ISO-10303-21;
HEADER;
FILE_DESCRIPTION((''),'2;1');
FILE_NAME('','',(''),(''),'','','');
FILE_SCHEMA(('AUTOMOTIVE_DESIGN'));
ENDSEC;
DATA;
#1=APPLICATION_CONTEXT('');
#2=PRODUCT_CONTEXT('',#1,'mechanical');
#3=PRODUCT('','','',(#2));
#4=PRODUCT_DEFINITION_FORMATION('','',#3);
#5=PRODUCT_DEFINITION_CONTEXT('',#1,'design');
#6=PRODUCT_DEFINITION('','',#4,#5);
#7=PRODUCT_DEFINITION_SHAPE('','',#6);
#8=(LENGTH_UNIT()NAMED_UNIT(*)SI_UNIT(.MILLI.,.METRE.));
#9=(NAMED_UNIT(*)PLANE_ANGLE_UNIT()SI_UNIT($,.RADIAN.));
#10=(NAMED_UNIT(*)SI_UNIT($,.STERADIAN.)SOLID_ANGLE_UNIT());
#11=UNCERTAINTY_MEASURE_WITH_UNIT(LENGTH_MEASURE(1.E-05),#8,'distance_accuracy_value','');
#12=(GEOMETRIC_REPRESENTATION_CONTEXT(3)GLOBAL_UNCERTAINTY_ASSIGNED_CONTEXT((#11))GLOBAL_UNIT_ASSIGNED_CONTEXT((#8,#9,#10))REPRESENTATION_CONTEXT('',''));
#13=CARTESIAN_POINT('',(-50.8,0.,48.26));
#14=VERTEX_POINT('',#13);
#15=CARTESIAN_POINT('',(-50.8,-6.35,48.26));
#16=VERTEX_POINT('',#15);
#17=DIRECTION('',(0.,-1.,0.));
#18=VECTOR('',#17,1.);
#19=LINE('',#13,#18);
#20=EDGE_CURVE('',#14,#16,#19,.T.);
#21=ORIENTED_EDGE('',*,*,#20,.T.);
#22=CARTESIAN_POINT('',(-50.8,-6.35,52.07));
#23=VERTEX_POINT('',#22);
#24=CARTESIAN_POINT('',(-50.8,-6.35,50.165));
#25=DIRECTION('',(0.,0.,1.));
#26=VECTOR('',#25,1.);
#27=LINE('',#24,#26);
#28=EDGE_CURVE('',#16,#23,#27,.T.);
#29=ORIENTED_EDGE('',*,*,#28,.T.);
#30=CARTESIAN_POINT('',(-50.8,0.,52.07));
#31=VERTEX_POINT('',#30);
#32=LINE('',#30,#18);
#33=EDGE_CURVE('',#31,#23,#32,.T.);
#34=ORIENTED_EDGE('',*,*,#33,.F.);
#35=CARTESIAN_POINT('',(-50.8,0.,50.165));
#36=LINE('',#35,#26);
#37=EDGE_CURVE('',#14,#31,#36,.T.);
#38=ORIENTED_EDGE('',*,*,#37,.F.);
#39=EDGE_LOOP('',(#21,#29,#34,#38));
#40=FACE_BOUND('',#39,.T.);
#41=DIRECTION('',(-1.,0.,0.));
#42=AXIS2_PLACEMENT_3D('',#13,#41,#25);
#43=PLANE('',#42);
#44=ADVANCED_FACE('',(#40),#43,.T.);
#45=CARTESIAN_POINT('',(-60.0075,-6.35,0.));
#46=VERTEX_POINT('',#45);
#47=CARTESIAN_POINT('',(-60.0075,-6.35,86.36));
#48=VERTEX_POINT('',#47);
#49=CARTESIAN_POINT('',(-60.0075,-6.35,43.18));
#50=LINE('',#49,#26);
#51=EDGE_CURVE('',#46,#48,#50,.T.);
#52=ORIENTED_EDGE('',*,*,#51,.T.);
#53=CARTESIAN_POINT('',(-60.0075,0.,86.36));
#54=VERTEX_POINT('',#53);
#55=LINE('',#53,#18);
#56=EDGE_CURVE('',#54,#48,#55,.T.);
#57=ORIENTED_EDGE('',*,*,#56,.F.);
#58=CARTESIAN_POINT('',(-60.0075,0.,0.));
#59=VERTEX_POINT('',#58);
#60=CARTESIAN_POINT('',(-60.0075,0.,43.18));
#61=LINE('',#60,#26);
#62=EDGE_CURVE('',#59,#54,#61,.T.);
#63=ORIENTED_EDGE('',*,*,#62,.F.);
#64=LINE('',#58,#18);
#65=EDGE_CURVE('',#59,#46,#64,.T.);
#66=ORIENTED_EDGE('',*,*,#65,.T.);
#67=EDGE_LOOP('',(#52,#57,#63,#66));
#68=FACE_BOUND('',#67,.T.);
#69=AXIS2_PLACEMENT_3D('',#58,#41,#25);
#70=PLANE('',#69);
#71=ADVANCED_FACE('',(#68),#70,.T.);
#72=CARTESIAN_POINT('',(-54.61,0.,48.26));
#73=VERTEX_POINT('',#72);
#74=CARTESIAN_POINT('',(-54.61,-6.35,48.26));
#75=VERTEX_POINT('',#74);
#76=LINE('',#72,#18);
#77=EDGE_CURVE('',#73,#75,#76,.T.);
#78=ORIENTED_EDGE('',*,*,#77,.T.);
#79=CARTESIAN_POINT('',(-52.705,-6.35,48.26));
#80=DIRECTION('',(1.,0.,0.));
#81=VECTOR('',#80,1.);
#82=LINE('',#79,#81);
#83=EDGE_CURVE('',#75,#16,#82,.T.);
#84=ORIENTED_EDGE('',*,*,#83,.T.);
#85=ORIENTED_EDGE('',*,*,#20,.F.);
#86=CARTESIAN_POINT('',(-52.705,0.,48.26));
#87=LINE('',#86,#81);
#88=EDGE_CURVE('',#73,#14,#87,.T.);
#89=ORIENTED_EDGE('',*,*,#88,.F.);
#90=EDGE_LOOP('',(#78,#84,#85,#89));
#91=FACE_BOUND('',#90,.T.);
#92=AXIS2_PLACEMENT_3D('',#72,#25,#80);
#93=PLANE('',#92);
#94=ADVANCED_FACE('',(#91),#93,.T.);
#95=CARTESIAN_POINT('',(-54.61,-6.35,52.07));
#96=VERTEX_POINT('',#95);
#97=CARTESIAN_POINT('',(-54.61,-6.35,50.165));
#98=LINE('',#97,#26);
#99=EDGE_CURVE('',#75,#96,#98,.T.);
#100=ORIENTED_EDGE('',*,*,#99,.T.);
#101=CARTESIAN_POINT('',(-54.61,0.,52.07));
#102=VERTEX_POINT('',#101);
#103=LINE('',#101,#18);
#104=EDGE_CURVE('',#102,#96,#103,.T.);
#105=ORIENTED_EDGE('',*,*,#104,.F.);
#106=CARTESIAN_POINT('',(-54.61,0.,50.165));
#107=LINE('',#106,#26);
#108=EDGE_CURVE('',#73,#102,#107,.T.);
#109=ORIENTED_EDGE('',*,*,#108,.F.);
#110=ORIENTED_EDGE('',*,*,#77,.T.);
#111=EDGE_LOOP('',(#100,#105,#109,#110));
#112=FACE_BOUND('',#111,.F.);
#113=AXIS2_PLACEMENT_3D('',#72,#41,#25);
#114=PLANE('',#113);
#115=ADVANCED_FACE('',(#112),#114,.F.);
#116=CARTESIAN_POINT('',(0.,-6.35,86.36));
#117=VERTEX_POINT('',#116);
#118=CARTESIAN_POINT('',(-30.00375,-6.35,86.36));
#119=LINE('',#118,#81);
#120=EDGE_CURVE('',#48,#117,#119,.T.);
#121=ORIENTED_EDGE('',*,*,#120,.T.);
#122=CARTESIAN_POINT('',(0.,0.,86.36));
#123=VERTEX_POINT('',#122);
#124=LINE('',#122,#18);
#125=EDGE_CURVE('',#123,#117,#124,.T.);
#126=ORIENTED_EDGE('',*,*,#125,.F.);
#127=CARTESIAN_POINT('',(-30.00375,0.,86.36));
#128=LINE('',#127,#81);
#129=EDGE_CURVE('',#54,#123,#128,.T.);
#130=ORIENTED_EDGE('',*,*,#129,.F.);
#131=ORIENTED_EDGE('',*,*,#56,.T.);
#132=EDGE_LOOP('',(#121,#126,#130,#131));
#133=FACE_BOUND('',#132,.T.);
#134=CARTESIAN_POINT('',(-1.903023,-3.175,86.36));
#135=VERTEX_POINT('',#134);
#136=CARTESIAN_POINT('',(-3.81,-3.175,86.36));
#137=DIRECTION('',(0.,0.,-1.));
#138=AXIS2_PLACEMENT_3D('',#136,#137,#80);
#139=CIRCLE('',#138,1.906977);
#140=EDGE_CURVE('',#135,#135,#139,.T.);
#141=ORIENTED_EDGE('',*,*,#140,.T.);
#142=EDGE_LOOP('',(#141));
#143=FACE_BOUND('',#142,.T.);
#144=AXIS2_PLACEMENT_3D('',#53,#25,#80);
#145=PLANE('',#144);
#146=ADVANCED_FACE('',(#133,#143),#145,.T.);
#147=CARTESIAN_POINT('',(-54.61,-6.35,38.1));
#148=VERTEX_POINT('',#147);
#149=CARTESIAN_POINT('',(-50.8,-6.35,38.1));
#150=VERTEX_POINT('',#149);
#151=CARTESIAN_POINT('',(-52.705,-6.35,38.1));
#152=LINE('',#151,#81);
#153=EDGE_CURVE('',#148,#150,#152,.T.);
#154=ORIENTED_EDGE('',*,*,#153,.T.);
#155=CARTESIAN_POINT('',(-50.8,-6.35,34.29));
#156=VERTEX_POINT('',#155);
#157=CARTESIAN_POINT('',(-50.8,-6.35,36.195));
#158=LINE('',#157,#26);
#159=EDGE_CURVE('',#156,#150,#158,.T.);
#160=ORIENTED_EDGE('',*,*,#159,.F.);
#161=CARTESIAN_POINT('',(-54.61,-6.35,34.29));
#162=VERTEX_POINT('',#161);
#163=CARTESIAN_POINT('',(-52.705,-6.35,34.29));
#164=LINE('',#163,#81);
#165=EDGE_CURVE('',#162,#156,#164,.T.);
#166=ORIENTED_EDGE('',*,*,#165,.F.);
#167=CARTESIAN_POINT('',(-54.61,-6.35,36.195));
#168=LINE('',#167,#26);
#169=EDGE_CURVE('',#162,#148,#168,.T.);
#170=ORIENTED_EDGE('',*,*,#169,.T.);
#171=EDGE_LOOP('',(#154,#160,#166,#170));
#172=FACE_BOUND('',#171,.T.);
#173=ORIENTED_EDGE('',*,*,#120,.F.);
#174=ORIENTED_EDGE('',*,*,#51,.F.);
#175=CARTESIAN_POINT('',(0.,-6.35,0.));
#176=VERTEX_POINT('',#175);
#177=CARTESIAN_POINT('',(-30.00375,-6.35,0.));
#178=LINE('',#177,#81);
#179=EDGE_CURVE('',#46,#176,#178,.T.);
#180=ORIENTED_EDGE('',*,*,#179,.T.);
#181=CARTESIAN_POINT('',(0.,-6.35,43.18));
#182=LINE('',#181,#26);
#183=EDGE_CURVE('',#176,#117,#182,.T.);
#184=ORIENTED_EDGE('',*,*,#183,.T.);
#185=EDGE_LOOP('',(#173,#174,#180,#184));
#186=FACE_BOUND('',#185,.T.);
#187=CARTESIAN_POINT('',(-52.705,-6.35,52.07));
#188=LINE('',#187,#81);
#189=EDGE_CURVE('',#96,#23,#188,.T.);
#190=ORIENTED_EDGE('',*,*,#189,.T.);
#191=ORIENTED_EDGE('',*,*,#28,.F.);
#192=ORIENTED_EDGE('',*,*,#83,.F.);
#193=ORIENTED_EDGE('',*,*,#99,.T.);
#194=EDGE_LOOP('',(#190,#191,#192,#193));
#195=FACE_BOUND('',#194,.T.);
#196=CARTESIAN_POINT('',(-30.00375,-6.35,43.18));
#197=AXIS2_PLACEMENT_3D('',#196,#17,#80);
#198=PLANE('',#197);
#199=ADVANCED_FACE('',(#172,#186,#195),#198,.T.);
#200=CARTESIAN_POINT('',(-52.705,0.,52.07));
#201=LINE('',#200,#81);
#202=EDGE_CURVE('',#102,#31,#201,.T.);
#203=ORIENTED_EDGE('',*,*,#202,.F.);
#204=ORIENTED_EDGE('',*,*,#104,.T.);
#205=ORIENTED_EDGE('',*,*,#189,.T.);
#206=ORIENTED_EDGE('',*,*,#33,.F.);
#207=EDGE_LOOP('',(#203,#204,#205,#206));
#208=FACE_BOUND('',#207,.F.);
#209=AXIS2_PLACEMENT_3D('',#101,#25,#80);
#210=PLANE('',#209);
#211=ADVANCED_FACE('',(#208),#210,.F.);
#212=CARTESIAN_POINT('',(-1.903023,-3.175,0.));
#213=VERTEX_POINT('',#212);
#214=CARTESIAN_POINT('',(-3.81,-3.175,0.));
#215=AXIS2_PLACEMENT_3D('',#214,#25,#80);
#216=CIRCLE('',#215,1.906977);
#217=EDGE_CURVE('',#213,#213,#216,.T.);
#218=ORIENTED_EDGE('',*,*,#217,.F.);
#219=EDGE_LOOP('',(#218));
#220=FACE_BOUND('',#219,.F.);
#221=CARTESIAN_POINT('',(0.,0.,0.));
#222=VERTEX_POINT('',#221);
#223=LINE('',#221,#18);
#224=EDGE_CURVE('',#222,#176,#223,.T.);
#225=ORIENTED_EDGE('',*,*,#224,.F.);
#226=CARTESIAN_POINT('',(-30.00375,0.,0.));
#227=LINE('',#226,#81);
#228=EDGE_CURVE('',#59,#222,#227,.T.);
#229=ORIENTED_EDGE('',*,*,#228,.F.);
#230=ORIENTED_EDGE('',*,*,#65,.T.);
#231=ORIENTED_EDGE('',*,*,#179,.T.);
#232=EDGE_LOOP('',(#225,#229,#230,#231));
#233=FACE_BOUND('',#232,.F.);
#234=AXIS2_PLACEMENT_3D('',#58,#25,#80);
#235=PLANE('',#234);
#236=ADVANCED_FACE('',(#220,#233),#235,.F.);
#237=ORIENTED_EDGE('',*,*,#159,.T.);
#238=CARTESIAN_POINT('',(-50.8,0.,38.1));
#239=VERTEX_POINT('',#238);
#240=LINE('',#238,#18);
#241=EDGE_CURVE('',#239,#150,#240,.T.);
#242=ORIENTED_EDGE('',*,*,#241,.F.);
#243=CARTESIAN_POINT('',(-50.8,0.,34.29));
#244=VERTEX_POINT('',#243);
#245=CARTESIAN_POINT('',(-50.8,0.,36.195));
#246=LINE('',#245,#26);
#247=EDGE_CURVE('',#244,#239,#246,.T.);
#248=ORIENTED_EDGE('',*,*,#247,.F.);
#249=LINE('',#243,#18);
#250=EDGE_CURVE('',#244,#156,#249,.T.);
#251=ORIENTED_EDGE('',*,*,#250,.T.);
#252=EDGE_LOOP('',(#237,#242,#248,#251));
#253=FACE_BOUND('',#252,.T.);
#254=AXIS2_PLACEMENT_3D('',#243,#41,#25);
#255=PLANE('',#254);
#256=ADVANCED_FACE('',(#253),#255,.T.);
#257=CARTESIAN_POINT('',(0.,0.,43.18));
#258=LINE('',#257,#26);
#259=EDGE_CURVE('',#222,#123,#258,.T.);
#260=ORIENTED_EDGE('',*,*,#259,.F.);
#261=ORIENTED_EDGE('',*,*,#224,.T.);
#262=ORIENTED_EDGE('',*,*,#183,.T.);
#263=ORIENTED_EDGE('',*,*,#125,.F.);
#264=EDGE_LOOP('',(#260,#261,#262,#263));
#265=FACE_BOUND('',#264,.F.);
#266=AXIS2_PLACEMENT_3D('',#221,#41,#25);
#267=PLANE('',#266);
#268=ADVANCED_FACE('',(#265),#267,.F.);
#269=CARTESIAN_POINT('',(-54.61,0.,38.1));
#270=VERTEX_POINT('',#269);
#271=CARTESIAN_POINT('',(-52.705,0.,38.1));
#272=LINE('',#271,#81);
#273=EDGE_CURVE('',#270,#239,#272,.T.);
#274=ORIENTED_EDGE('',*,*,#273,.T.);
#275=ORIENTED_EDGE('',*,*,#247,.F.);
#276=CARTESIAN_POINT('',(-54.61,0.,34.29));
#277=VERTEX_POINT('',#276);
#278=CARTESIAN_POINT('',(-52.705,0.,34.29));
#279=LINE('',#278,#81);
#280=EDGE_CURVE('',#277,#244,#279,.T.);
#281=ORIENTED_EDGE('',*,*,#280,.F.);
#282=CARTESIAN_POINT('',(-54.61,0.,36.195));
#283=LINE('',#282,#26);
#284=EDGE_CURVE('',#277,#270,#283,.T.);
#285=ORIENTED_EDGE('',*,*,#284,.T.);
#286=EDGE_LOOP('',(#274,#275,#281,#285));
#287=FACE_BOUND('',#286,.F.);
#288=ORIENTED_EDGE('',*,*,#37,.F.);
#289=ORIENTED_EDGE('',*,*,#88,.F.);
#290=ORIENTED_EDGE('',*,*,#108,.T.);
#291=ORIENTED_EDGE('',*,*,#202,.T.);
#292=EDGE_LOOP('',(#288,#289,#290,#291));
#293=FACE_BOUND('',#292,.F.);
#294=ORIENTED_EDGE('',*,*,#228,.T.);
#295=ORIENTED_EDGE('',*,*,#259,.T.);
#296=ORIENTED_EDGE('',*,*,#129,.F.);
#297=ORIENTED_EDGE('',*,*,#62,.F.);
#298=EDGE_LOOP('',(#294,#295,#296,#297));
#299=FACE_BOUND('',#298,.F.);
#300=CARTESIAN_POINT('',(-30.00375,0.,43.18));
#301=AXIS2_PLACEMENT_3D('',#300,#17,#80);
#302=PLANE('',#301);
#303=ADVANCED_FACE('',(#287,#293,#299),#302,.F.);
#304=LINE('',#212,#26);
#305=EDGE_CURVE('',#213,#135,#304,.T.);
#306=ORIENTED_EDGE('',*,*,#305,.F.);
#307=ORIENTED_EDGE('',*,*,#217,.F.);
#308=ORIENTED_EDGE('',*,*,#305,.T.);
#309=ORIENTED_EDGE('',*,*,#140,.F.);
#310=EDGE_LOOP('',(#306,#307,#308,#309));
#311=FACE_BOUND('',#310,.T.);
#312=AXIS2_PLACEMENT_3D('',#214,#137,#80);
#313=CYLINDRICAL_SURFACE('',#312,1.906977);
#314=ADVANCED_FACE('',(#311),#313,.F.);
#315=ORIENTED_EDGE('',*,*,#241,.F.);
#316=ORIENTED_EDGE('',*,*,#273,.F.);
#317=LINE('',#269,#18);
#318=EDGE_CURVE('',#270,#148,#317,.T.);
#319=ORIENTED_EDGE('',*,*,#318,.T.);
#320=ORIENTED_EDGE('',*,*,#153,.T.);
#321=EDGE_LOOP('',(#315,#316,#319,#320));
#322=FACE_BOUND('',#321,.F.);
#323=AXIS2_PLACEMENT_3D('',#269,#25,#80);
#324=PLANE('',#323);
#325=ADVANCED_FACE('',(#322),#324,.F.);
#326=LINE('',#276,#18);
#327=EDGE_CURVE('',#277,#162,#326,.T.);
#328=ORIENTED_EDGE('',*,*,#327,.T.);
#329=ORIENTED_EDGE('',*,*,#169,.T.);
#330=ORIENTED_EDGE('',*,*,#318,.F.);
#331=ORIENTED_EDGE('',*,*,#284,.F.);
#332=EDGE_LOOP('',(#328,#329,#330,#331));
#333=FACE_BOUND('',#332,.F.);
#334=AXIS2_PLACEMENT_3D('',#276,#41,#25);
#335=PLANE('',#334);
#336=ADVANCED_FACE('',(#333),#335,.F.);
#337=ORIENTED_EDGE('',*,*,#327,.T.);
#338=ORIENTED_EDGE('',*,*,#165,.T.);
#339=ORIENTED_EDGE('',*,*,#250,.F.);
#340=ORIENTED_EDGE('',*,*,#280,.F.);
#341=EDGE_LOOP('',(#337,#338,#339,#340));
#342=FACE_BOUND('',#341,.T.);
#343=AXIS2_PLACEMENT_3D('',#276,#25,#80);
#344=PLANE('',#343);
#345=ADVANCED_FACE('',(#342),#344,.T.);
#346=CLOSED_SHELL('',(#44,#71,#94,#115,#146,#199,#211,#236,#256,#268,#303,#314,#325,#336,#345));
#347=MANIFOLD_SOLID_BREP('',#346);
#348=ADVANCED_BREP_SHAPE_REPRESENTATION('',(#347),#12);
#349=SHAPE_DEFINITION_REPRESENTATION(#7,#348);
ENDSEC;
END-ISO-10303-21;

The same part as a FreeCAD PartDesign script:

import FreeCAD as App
import Part
import Sketcher
from FreeCAD import Vector
Q = App.Units.Quantity

doc = App.newDocument("Part")
body = doc.addObject("PartDesign::Body", "Body")

# Sketch on XZ plane
sketch1 = body.newObject("Sketcher::SketchObject", "Sketch")
sketch1.AttachmentSupport = (doc.getObject("XZ_Plane"), [""])
sketch1.MapMode = "FlatFace"
sketch1.addGeometry([
    Part.LineSegment(Vector(-60, 86.4, 0), Vector(-60, 0, 0)),  # 0
    Part.LineSegment(Vector(-60, 0, 0), Vector(0, 0, 0)),  # 1
    Part.LineSegment(Vector(0, 0, 0), Vector(0, 86.4, 0)),  # 2
    Part.LineSegment(Vector(0, 86.4, 0), Vector(-60, 86.4, 0)),  # 3
    Part.LineSegment(Vector(-50.8, 34.3, 0), Vector(-54.6, 34.3, 0)),  # 4
    Part.LineSegment(Vector(-54.6, 34.3, 0), Vector(-54.6, 38.1, 0)),  # 5
    Part.LineSegment(Vector(-54.6, 38.1, 0), Vector(-50.8, 38.1, 0)),  # 6
    Part.LineSegment(Vector(-50.8, 38.1, 0), Vector(-50.8, 34.3, 0)),  # 7
    Part.LineSegment(Vector(-50.8, 48.3, 0), Vector(-54.6, 48.3, 0)),  # 8
    Part.LineSegment(Vector(-54.6, 48.3, 0), Vector(-54.6, 52.1, 0)),  # 9
    Part.LineSegment(Vector(-54.6, 52.1, 0), Vector(-50.8, 52.1, 0)),  # 10
    Part.LineSegment(Vector(-50.8, 52.1, 0), Vector(-50.8, 48.3, 0)),  # 11
], False)
sketch1.addConstraint([
    Sketcher.Constraint("Coincident", 0, 2, 1, 1),
    Sketcher.Constraint("Coincident", 1, 2, 2, 1),
    Sketcher.Constraint("Coincident", 2, 2, 3, 1),
    Sketcher.Constraint("Coincident", 3, 2, 0, 1),
    Sketcher.Constraint("Coincident", 4, 2, 5, 1),
    Sketcher.Constraint("Coincident", 5, 2, 6, 1),
    Sketcher.Constraint("Coincident", 6, 2, 7, 1),
    Sketcher.Constraint("Coincident", 7, 2, 4, 1),
    Sketcher.Constraint("Coincident", 8, 2, 9, 1),
    Sketcher.Constraint("Coincident", 9, 2, 10, 1),
    Sketcher.Constraint("Coincident", 10, 2, 11, 1),
    Sketcher.Constraint("Coincident", 11, 2, 8, 1),
    Sketcher.Constraint("Vertical", 0),
    Sketcher.Constraint("Horizontal", 1),
    Sketcher.Constraint("Vertical", 2),
    Sketcher.Constraint("Horizontal", 3),
    Sketcher.Constraint("Horizontal", 4),
    Sketcher.Constraint("Vertical", 5),
    Sketcher.Constraint("Horizontal", 6),
    Sketcher.Constraint("Vertical", 7),
    Sketcher.Constraint("Horizontal", 8),
    Sketcher.Constraint("Vertical", 9),
    Sketcher.Constraint("Horizontal", 10),
    Sketcher.Constraint("Vertical", 11),
    Sketcher.Constraint("Coincident", 1, 2, -1, 1),
    Sketcher.Constraint("Vertical", 5, 2, 8, 2),
    Sketcher.Constraint("Vertical", 7, 2, 10, 2),
    Sketcher.Constraint("Equal", 10, 5),
    Sketcher.Constraint("Equal", 7, 9),
    Sketcher.Constraint("DistanceY", 0, 2, 0, 1, Q("3.4 in")),
    Sketcher.Constraint("DistanceX", 6, 2, -1, 1, Q("2 in")),
    Sketcher.Constraint("DistanceX", 4, 2, 4, 1, Q("0.15 in")),
    Sketcher.Constraint("DistanceY", -1, 1, 5, 2, Q("1.5 in")),
    Sketcher.Constraint("DistanceY", -1, 1, 8, 2, Q("1.9 in")),
    Sketcher.Constraint("DistanceX", 1, 1, 1, 2, Q("2.3625 in")),
])
pad1 = body.newObject("PartDesign::Pad", "Pad")
pad1.Profile = sketch1
pad1.Length = Q("0.25 in")

# Sketch on XY plane
sketch2 = body.newObject("Sketcher::SketchObject", "Sketch001")
sketch2.AttachmentSupport = (doc.getObject("XY_Plane"), [""])
sketch2.MapMode = "FlatFace"
sketch2.addGeometry(Part.Circle(Vector(-3.8, -3.2, 0), Vector(0, 0, 1), 1.9), False)
sketch2.addConstraint([
    Sketcher.Constraint("DistanceX", 0, 3, -1, 1, Q("0.15 in")),
    Sketcher.Constraint("DistanceY", 0, 3, -1, 1, Q("0.125 in")),
    Sketcher.Constraint("Diameter", 0, Q("3.813954 mm")),
])
pocket1 = body.newObject("PartDesign::Pocket", "Pocket")
pocket1.Profile = sketch2
pocket1.Type = "ThroughAll"
pocket1.Reversed = True

doc.recompute()
